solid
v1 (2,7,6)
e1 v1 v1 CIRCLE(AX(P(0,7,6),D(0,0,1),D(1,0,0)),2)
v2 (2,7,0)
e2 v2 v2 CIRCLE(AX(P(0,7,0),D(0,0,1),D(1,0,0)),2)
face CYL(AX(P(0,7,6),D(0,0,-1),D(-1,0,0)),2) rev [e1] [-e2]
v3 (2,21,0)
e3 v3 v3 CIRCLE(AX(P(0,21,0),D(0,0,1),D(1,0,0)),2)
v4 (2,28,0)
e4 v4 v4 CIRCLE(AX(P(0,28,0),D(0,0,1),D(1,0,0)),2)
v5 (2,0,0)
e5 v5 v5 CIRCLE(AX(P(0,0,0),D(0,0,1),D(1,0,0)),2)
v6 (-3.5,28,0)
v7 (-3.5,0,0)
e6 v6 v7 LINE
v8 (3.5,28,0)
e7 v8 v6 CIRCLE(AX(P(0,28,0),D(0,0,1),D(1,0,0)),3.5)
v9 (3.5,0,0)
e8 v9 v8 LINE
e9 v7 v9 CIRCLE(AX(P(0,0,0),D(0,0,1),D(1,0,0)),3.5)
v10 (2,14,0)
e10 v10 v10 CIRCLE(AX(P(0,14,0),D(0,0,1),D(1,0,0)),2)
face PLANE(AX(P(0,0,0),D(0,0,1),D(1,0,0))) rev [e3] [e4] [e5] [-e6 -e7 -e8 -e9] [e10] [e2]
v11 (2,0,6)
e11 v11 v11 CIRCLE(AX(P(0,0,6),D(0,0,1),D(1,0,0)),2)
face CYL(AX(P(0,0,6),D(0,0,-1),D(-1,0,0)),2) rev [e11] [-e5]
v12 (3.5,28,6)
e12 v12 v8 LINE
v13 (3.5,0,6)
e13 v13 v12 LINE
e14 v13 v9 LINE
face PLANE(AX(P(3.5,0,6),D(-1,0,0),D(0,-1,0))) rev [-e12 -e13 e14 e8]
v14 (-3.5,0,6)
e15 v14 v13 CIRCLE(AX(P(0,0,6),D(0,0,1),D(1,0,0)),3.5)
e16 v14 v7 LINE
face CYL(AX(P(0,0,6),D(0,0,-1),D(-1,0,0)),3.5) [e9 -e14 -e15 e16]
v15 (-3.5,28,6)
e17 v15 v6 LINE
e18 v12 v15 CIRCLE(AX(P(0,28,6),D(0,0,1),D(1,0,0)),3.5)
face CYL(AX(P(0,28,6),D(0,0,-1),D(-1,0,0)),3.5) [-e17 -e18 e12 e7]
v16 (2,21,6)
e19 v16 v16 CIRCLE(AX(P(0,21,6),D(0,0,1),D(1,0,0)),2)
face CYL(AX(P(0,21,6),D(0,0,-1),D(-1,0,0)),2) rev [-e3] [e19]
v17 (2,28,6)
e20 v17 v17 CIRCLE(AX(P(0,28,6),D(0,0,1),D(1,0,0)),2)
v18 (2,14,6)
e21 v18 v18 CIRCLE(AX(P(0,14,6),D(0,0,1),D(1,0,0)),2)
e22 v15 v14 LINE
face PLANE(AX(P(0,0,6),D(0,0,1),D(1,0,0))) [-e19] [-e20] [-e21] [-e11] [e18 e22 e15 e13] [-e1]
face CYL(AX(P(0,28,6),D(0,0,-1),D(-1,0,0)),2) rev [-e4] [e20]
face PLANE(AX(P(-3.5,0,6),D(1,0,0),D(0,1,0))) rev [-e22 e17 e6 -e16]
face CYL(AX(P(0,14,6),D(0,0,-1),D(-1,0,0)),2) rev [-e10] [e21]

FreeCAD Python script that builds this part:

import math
import FreeCAD as App
import Part
import Sketcher

V = App.Vector

doc = App.newDocument("Part")
body = doc.addObject("PartDesign::Body", "Body")

# Sketch on XY plane
sketch1 = body.newObject("Sketcher::SketchObject", "Sketch")
sketch1.AttachmentSupport = (doc.getObject("XY_Plane"), [""])
sketch1.MapMode = "FlatFace"
sketch1.addGeometry([
    Part.LineSegment(V(-3.5, 28, 0), V(-3.5, 0, 0)),  # 0
    Part.ArcOfCircle(Part.Circle(V(0, 0, 0), V(0, 0, 1), 3.5), math.radians(180), math.radians(360)),  # 1
    Part.LineSegment(V(3.5, 0, 0), V(3.5, 28, 0)),  # 2
    Part.ArcOfCircle(Part.Circle(V(0, 28, 0), V(0, 0, 1), 3.5), math.radians(0), math.radians(180)),  # 3
    Part.Circle(V(0, 0, 0), V(0, 0, 1), 2),  # 4
    Part.Circle(V(0, 7, 0), V(0, 0, 1), 2),  # 5
    Part.Circle(V(0, 14, 0), V(0, 0, 1), 2),  # 6
    Part.Circle(V(0, 21, 0), V(0, 0, 1), 2),  # 7
    Part.Circle(V(0, 28, 0), V(0, 0, 1), 2),  # 8
], False)
sketch1.addConstraint([
    Sketcher.Constraint("Tangent", 0, 2, 1, 1),
    Sketcher.Constraint("Tangent", 1, 2, 2, 1),
    Sketcher.Constraint("Tangent", 2, 2, 3, 1),
    Sketcher.Constraint("Tangent", 3, 2, 0, 1),
    Sketcher.Constraint("Vertical", 0),
    Sketcher.Constraint("Vertical", 2),
    Sketcher.Constraint("Coincident", 1, 3, -1, 1),
    Sketcher.Constraint("Coincident", 4, 3, -1, 1),
    Sketcher.Constraint("Coincident", 8, 3, 3, 3),
    Sketcher.Constraint("Equal", 4, 5),
    Sketcher.Constraint("Equal", 5, 6),
    Sketcher.Constraint("Equal", 6, 7),
    Sketcher.Constraint("Equal", 7, 8),
    Sketcher.Constraint("PointOnObject", 5, 3, -2),
    Sketcher.Constraint("PointOnObject", 6, 3, -2),
    Sketcher.Constraint("PointOnObject", 7, 3, -2),
    Sketcher.Constraint("Diameter", 4, 4.0),
    Sketcher.Constraint("Radius", 1, 3.5),
    Sketcher.Constraint("DistanceY", 0, 2, 0, 1, 28.0),
    Sketcher.Constraint("DistanceY", -1, 1, 5, 3, 7.0),
    Sketcher.Constraint("DistanceY", -1, 1, 6, 3, 14.0),
    Sketcher.Constraint("DistanceY", -1, 1, 7, 3, 21.0),
])
pad1 = body.newObject("PartDesign::Pad", "Pad")
pad1.Profile = sketch1
pad1.Length = 6

doc.recompute()
